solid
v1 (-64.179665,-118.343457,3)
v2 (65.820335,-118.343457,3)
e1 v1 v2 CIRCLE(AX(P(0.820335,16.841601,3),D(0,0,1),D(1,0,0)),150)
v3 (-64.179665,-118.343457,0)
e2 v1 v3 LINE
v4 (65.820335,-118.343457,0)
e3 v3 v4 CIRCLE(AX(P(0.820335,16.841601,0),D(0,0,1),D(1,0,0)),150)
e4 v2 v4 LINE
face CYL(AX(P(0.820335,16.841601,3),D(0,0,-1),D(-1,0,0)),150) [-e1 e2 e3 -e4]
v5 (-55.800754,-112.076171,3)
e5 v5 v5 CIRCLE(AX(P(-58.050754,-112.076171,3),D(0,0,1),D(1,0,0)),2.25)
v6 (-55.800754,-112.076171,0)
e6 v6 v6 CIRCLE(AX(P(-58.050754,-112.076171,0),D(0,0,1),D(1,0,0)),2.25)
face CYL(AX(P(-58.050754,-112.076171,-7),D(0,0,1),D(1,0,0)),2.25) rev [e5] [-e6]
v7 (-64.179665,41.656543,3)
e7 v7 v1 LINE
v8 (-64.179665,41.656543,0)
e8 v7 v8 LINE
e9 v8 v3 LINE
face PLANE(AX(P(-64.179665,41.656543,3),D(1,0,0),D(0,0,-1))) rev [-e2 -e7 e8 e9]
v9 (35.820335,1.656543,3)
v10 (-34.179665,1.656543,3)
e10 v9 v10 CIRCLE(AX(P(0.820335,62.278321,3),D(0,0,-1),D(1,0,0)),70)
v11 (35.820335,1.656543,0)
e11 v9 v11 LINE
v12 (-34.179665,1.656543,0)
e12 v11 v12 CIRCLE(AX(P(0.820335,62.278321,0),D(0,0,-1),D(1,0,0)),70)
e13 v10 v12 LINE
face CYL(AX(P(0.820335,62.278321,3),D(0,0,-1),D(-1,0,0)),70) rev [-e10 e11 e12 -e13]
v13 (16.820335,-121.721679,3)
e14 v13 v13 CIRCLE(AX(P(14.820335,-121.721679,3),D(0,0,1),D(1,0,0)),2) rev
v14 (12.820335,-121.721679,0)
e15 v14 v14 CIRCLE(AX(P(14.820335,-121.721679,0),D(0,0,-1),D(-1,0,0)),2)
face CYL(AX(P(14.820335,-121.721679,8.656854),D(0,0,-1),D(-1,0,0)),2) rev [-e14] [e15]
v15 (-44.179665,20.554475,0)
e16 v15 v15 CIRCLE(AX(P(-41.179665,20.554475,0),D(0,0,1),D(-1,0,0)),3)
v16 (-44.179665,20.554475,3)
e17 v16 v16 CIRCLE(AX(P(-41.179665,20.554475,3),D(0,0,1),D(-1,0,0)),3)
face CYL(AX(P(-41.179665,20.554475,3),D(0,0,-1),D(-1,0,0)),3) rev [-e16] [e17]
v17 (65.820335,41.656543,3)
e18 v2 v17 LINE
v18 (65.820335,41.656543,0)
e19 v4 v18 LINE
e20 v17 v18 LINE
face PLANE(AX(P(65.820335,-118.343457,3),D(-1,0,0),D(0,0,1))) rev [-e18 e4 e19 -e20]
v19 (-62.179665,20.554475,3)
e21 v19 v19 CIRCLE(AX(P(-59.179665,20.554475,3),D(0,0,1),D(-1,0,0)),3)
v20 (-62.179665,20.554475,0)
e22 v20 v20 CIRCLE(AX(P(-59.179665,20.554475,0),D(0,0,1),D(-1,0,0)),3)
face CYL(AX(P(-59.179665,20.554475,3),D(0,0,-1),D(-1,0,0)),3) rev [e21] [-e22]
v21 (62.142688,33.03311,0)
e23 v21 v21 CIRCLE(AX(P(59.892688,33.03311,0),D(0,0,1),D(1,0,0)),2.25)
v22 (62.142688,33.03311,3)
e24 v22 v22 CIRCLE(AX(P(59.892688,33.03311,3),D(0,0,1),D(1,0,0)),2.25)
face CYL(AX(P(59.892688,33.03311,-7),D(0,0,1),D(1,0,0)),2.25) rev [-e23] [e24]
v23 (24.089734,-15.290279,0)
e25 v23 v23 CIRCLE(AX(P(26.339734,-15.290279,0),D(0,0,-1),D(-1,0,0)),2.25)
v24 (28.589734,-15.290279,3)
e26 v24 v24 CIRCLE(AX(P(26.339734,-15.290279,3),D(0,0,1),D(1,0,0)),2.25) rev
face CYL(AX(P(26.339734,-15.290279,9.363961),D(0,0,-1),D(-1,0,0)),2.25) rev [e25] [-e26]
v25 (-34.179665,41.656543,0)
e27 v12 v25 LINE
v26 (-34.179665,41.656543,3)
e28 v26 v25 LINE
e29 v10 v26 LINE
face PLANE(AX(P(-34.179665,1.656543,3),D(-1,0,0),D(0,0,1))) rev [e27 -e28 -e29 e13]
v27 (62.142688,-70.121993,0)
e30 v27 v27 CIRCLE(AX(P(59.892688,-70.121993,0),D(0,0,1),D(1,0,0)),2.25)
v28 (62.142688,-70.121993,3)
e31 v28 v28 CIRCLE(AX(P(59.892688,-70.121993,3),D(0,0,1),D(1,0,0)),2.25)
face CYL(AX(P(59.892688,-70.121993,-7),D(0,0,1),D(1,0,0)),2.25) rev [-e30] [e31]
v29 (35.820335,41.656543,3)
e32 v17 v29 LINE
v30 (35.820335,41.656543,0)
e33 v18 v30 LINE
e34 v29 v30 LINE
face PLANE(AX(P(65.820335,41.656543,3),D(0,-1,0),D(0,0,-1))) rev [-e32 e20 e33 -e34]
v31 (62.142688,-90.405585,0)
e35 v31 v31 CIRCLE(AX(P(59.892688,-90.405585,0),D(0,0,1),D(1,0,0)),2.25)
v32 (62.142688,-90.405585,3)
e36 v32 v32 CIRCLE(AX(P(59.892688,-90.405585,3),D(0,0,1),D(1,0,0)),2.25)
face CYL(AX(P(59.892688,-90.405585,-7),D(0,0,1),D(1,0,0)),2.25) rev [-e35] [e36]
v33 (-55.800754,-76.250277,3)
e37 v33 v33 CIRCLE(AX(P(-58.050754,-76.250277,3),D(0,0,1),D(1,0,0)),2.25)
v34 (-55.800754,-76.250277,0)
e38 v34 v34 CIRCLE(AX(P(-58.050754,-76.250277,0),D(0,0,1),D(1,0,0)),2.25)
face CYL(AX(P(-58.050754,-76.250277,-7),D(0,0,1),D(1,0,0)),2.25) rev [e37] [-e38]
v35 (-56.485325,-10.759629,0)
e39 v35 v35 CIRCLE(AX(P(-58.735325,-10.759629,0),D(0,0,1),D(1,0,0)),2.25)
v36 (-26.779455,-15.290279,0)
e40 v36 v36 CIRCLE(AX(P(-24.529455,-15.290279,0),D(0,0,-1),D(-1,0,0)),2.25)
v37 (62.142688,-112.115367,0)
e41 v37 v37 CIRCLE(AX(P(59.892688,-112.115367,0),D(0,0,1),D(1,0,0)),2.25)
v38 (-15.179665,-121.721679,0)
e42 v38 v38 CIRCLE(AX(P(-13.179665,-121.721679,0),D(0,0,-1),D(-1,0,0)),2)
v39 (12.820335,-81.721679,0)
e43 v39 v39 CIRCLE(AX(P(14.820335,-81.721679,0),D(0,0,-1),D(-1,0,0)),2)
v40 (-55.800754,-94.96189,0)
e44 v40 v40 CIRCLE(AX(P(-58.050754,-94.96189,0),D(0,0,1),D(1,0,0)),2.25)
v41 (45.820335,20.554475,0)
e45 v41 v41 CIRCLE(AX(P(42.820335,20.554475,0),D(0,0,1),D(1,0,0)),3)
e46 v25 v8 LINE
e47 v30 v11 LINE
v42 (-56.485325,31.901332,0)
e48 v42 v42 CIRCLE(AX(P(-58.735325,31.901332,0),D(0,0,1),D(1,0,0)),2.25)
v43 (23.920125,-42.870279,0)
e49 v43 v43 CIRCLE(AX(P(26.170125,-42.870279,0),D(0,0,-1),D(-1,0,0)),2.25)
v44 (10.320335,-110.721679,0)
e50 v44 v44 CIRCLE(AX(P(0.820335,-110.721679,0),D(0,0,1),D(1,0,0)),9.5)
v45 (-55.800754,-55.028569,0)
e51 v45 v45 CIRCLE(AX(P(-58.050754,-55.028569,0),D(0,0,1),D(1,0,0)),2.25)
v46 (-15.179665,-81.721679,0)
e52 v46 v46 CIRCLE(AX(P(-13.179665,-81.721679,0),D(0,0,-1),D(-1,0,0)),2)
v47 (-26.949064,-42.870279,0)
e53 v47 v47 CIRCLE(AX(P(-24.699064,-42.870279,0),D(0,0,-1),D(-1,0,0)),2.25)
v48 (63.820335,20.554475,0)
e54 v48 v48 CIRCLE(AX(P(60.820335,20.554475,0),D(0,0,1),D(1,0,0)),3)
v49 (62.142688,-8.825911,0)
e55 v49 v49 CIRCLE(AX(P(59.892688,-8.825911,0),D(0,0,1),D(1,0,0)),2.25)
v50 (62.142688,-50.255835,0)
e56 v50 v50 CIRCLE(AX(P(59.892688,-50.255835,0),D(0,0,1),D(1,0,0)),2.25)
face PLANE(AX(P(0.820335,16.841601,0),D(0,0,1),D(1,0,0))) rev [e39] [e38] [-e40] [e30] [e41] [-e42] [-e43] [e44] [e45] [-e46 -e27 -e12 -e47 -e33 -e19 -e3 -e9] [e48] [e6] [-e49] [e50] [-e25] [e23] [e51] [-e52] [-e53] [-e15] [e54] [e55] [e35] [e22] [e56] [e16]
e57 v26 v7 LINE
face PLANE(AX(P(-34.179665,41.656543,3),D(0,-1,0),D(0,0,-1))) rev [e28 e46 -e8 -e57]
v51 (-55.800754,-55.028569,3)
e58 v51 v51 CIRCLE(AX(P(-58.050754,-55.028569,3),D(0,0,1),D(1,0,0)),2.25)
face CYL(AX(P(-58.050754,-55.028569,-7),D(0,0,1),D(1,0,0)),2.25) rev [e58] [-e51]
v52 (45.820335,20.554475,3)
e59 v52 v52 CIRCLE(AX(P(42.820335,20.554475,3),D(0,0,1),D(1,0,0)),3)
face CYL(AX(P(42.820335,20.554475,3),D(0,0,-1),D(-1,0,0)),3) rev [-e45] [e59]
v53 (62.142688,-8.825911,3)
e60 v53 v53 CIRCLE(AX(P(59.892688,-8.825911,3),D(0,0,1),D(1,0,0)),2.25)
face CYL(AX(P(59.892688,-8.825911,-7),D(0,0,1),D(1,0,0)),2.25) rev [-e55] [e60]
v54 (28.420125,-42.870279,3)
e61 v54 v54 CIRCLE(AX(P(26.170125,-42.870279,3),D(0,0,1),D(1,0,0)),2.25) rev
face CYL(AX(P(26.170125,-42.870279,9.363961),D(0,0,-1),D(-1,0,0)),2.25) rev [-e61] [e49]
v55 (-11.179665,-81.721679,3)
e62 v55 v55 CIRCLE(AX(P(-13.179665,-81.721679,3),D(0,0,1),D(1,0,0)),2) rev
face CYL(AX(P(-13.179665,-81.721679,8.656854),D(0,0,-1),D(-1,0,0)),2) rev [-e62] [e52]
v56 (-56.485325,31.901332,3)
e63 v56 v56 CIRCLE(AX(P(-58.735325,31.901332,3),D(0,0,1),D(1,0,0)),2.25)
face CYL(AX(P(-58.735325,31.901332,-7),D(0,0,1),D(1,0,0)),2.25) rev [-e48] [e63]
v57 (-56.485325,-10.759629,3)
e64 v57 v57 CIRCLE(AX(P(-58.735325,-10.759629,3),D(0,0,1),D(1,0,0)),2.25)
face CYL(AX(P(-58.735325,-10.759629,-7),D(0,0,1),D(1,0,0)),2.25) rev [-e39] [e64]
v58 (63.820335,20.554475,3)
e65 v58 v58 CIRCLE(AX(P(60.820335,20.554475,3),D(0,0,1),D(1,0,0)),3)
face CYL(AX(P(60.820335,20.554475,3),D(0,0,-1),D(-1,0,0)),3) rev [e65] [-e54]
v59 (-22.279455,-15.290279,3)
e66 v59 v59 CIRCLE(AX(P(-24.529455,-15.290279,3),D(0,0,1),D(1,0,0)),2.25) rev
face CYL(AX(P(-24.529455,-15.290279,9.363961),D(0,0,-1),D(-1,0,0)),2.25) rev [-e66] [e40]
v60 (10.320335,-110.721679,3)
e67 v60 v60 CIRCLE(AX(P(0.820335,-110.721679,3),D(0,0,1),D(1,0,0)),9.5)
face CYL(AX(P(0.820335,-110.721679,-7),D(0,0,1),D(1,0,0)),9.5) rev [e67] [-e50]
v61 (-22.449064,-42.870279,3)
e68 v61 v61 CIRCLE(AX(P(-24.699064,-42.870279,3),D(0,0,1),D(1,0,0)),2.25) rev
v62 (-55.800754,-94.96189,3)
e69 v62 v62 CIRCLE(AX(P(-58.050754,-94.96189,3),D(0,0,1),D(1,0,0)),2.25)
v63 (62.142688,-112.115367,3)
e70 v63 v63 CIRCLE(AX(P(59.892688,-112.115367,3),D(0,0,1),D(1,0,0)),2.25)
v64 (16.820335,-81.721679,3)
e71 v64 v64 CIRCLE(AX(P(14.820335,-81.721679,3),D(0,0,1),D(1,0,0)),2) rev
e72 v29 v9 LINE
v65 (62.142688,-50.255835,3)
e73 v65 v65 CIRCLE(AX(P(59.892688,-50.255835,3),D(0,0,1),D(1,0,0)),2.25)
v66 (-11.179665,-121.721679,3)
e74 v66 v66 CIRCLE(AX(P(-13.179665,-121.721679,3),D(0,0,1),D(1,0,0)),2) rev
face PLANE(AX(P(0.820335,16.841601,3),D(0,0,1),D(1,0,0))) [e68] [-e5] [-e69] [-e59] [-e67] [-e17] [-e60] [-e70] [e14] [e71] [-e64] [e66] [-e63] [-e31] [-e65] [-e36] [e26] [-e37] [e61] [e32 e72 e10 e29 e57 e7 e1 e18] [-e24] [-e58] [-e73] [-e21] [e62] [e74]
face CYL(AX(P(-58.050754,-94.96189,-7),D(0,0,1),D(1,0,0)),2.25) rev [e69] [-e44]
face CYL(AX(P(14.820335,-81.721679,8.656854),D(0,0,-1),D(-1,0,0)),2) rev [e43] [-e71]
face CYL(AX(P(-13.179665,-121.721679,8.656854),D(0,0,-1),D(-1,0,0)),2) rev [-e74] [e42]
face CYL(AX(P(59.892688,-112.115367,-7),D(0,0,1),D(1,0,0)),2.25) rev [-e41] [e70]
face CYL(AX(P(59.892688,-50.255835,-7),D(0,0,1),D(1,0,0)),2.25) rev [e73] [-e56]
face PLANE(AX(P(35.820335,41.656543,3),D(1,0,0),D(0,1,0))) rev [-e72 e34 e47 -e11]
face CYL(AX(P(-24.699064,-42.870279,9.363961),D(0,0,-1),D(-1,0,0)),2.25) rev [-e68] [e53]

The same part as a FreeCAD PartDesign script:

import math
import FreeCAD as App
import Part
import Sketcher
from FreeCAD import Vector

doc = App.newDocument("Part")
body = doc.addObject("PartDesign::Body", "Body")

sketch1 = doc.addObject("Sketcher::SketchObject", "Sketch")
body.addObject(sketch1)
sketch1.AttachmentSupport = (doc.XY_Plane, [""])
sketch1.MapMode = "FlatFace"
sketch1.addGeometry(Part.LineSegment(Vector(-34.2, 1.7, 0), Vector(-34.2, 41.7, 0)), False)
sketch1.addGeometry(Part.LineSegment(Vector(-34.2, 41.7, 0), Vector(-64.2, 41.7, 0)), False)
sketch1.addGeometry(Part.LineSegment(Vector(-64.2, 41.7, 0), Vector(-64.2, -118.3, 0)), False)
sketch1.addGeometry(Part.ArcOfCircle(Part.Circle(Vector(0.8, 16.8, 0), Vector(0, 0, 1), 150), math.radians(-116), math.radians(-64)), False)
sketch1.addGeometry(Part.LineSegment(Vector(65.8, -118.3, 0), Vector(65.8, 41.7, 0)), False)
sketch1.addGeometry(Part.LineSegment(Vector(65.8, 41.7, 0), Vector(35.8, 41.7, 0)), False)
sketch1.addGeometry(Part.LineSegment(Vector(35.8, 41.7, 0), Vector(35.8, 1.7, 0)), False)
sketch1.addGeometry(Part.ArcOfCircle(Part.Circle(Vector(0.8, 62.3, 0), Vector(0, 0, 1), 70), math.radians(-120), math.radians(-60)), False)
sketch1.addGeometry(Part.Circle(Vector(-59.2, 20.6, 0), Vector(0, 0, 1), 3), False)
sketch1.addGeometry(Part.Circle(Vector(-41.2, 20.6, 0), Vector(0, 0, 1), 3), False)
sketch1.addGeometry(Part.Circle(Vector(42.8, 20.6, 0), Vector(0, 0, 1), 3), False)
sketch1.addGeometry(Part.Circle(Vector(60.8, 20.6, 0), Vector(0, 0, 1), 3), False)
sketch1.addConstraint(Sketcher.Constraint("Coincident", 0, 2, 1, 1))
sketch1.addConstraint(Sketcher.Constraint("Coincident", 1, 2, 2, 1))
sketch1.addConstraint(Sketcher.Constraint("Coincident", 2, 2, 3, 1))
sketch1.addConstraint(Sketcher.Constraint("Coincident", 3, 2, 4, 1))
sketch1.addConstraint(Sketcher.Constraint("Coincident", 4, 2, 5, 1))
sketch1.addConstraint(Sketcher.Constraint("Coincident", 5, 2, 6, 1))
sketch1.addConstraint(Sketcher.Constraint("Coincident", 6, 2, 7, 2))
sketch1.addConstraint(Sketcher.Constraint("Coincident", 7, 1, 0, 1))
sketch1.addConstraint(Sketcher.Constraint("Vertical", 0))
sketch1.addConstraint(Sketcher.Constraint("Horizontal", 1))
sketch1.addConstraint(Sketcher.Constraint("Vertical", 2))
sketch1.addConstraint(Sketcher.Constraint("Vertical", 4))
sketch1.addConstraint(Sketcher.Constraint("Horizontal", 5))
sketch1.addConstraint(Sketcher.Constraint("Vertical", 6))
sketch1.addConstraint(Sketcher.Constraint("Equal", 8, 9))
sketch1.addConstraint(Sketcher.Constraint("Equal", 9, 10))
sketch1.addConstraint(Sketcher.Constraint("Equal", 10, 11))
sketch1.addConstraint(Sketcher.Constraint("Horizontal", 8, 3, 9, 3))
sketch1.addConstraint(Sketcher.Constraint("Horizontal", 9, 3, 10, 3))
sketch1.addConstraint(Sketcher.Constraint("Horizontal", 10, 3, 11, 3))
sketch1.addConstraint(Sketcher.Constraint("Horizontal", 2, 2, 3, 2))
sketch1.addConstraint(Sketcher.Constraint("Horizontal", 1, 2, 4, 2))
sketch1.addConstraint(Sketcher.Constraint("Horizontal", 6, 2, 7, 1))
sketch1.addConstraint(Sketcher.Constraint("Vertical", 3, 3, 7, 3))
sketch1.addConstraint(Sketcher.Constraint("Diameter", 8, 6.0))
sketch1.addConstraint(Sketcher.Constraint("Radius", 3, 150.0))
sketch1.addConstraint(Sketcher.Constraint("Radius", 7, 70.0))
sketch1.addConstraint(Sketcher.Constraint("DistanceX", 1, 2, 1, 1, 30.0))
sketch1.addConstraint(Sketcher.Constraint("DistanceY", 0, 1, 0, 2, 40.0))
sketch1.addConstraint(Sketcher.Constraint("DistanceY", 2, 2, 2, 1, 160.0))
sketch1.addConstraint(Sketcher.Constraint("DistanceX", 8, 3, 3, 3, 60.0))
sketch1.addConstraint(Sketcher.Constraint("DistanceX", 8, 3, 9, 3, 18.0))
sketch1.addConstraint(Sketcher.Constraint("DistanceX", 3, 3, 10, 3, 42.0))
sketch1.addConstraint(Sketcher.Constraint("DistanceX", 10, 3, 11, 3, 18.0))
sketch1.addConstraint(Sketcher.Constraint("DistanceX", 9, 3, 0, 2, 7.0))
sketch1.addConstraint(Sketcher.Constraint("DistanceY", -1, 1, 3, 3, 16.841601))
sketch1.addConstraint(Sketcher.Constraint("DistanceY", 9, 3, 0, 2, 21.102068))
sketch1.addConstraint(Sketcher.Constraint("DistanceX", -1, 1, 3, 3, 0.820335))
pad1 = doc.addObject("PartDesign::Pad", "Pad")
body.addObject(pad1)
pad1.Profile = sketch1
pad1.Length = 3

sketch2 = doc.addObject("Sketcher::SketchObject", "Sketch001")
body.addObject(sketch2)
sketch2.AttachmentSupport = (doc.XY_Plane, [""])
sketch2.MapMode = "FlatFace"
sketch2.AttachmentOffset = App.Placement(Vector(0, 0, 3), App.Rotation())
sketch2.addGeometry(Part.Circle(Vector(1, -111, 0), Vector(0, 0, 1), 10), False)
sketch2.addConstraint(Sketcher.Constraint("Diameter", 0, 19.0))
sketch2.addConstraint(Sketcher.Constraint("DistanceY", 0, 3, -1, 1, 110.721679))
sketch2.addConstraint(Sketcher.Constraint("DistanceX", -1, 1, 0, 3, 0.820335))
pocket1 = doc.addObject("PartDesign::Pocket", "Pocket")
body.addObject(pocket1)
pocket1.Profile = sketch2
pocket1.Length = 10

sketch3 = doc.addObject("Sketcher::SketchObject", "Sketch002")
body.addObject(sketch3)
sketch3.AttachmentSupport = (doc.XY_Plane, [""])
sketch3.MapMode = "FlatFace"
sketch3.addGeometry(Part.Circle(Vector(14.8, -121.7, 0), Vector(0, 0, 1), 2), False)
sketch3.addGeometry(Part.Circle(Vector(14.8, -81.7, 0), Vector(0, 0, 1), 2), False)
sketch3.addGeometry(Part.Circle(Vector(-13.2, -81.7, 0), Vector(0, 0, 1), 2), False)
sketch3.addGeometry(Part.Circle(Vector(-13.2, -121.7, 0), Vector(0, 0, 1), 2), False)
sketch3.addConstraint(Sketcher.Constraint("Equal", 0, 1))
sketch3.addConstraint(Sketcher.Constraint("Equal", 1, 2))
sketch3.addConstraint(Sketcher.Constraint("Equal", 2, 3))
sketch3.addConstraint(Sketcher.Constraint("Horizontal", 1, 3, 2, 3))
sketch3.addConstraint(Sketcher.Constraint("Horizontal", 0, 3, 3, 3))
sketch3.addConstraint(Sketcher.Constraint("Vertical", 0, 3, 1, 3))
sketch3.addConstraint(Sketcher.Constraint("Vertical", 2, 3, 3, 3))
sketch3.addConstraint(Sketcher.Constraint("Diameter", 0, 4.0))
sketch3.addConstraint(Sketcher.Constraint("DistanceY", 0, 3, 1, 3, 40.0))
sketch3.addConstraint(Sketcher.Constraint("DistanceX", 2, 3, 1, 3, 28.0))
sketch3.addConstraint(Sketcher.Constraint("DistanceY", 0, 3, -1, 1, 121.721679))
sketch3.addConstraint(Sketcher.Constraint("DistanceX", -1, 1, 0, 3, 14.820335))
pocket2 = doc.addObject("PartDesign::Pocket", "Pocket001")
body.addObject(pocket2)
pocket2.Profile = sketch3
pocket2.Length = 3
pocket2.Reversed = True

sketch4 = doc.addObject("Sketcher::SketchObject", "Sketch003")
body.addObject(sketch4)
sketch4.AttachmentSupport = (doc.XY_Plane, [""])
sketch4.MapMode = "FlatFace"
sketch4.addGeometry(Part.Circle(Vector(26.2, -42.9, 0), Vector(0, 0, 1), 2.2), False)
sketch4.addGeometry(Part.Circle(Vector(26.3, -15.3, 0), Vector(0, 0, 1), 2.2), False)
sketch4.addGeometry(Part.Circle(Vector(-24.5, -15.3, 0), Vector(0, 0, 1), 2.2), False)
sketch4.addGeometry(Part.Circle(Vector(-24.7, -42.9, 0), Vector(0, 0, 1), 2.2), False)
sketch4.addConstraint(Sketcher.Constraint("Equal", 0, 1))
sketch4.addConstraint(Sketcher.Constraint("Equal", 1, 2))
sketch4.addConstraint(Sketcher.Constraint("Equal", 2, 3))
sketch4.addConstraint(Sketcher.Constraint("Horizontal", 1, 3, 2, 3))
sketch4.addConstraint(Sketcher.Constraint("Horizontal", 0, 3, 3, 3))
sketch4.addConstraint(Sketcher.Constraint("Diameter", 0, 4.5))
sketch4.addConstraint(Sketcher.Constraint("DistanceY", 0, 3, 1, 3, 27.58))
sketch4.addConstraint(Sketcher.Constraint("DistanceX", 3, 3, 1, 3, 51.038798))
sketch4.addConstraint(Sketcher.Constraint("DistanceY", 0, 3, -1, 1, 42.870279))
sketch4.addConstraint(Sketcher.Constraint("DistanceX", 0, 3, 1, 3, 0.16961))
sketch4.addConstraint(Sketcher.Constraint("DistanceX", 2, 3, 1, 3, 50.869189))
sketch4.addConstraint(Sketcher.Constraint("DistanceX", -1, 1, 0, 3, 26.170125))
pocket3 = doc.addObject("PartDesign::Pocket", "Pocket002")
body.addObject(pocket3)
pocket3.Profile = sketch4
pocket3.Length = 3
pocket3.Reversed = True

sketch5 = doc.addObject("Sketcher::SketchObject", "Sketch004")
body.addObject(sketch5)
sketch5.AttachmentSupport = (doc.XY_Plane, [""])
sketch5.MapMode = "FlatFace"
sketch5.AttachmentOffset = App.Placement(Vector(0, 0, 3), App.Rotation())
sketch5.addGeometry(Part.Circle(Vector(-58.1, -112.1, 0), Vector(0, 0, 1), 2.2), False)
sketch5.addGeometry(Part.Circle(Vector(-58.1, -95, 0), Vector(0, 0, 1), 2.2), False)
sketch5.addGeometry(Part.Circle(Vector(-58.1, -76.3, 0), Vector(0, 0, 1), 2.2), False)
sketch5.addGeometry(Part.Circle(Vector(-58.1, -55, 0), Vector(0, 0, 1), 2.2), False)
sketch5.addGeometry(Part.Circle(Vector(-58.7, -10.8, 0), Vector(0, 0, 1), 2.2), False)
sketch5.addGeometry(Part.Circle(Vector(-58.7, 31.9, 0), Vector(0, 0, 1), 2.2), False)
sketch5.addGeometry(Part.Circle(Vector(59.9, -112.1, 0), Vector(0, 0, 1), 2.2), False)
sketch5.addGeometry(Part.Circle(Vector(59.9, -90.4, 0), Vector(0, 0, 1), 2.2), False)
sketch5.addGeometry(Part.Circle(Vector(59.9, -70.1, 0), Vector(0, 0, 1), 2.2), False)
sketch5.addGeometry(Part.Circle(Vector(59.9, -50.3, 0), Vector(0, 0, 1), 2.2), False)
sketch5.addGeometry(Part.Circle(Vector(59.9, -8.8, 0), Vector(0, 0, 1), 2.2), False)
sketch5.addGeometry(Part.Circle(Vector(59.9, 33, 0), Vector(0, 0, 1), 2.2), False)
sketch5.addConstraint(Sketcher.Constraint("Equal", 0, 1))
sketch5.addConstraint(Sketcher.Constraint("Equal", 1, 2))
sketch5.addConstraint(Sketcher.Constraint("Equal", 2, 3))
sketch5.addConstraint(Sketcher.Constraint("Equal", 3, 4))
sketch5.addConstraint(Sketcher.Constraint("Equal", 4, 5))
sketch5.addConstraint(Sketcher.Constraint("Equal", 5, 6))
sketch5.addConstraint(Sketcher.Constraint("Equal", 6, 7))
sketch5.addConstraint(Sketcher.Constraint("Equal", 7, 8))
sketch5.addConstraint(Sketcher.Constraint("Equal", 8, 9))
sketch5.addConstraint(Sketcher.Constraint("Equal", 9, 10))
sketch5.addConstraint(Sketcher.Constraint("Equal", 10, 11))
sketch5.addConstraint(Sketcher.Constraint("Vertical", 0, 3, 1, 3))
sketch5.addConstraint(Sketcher.Constraint("Vertical", 1, 3, 2, 3))
sketch5.addConstraint(Sketcher.Constraint("Vertical", 2, 3, 3, 3))
sketch5.addConstraint(Sketcher.Constraint("Vertical", 4, 3, 5, 3))
sketch5.addConstraint(Sketcher.Constraint("Vertical", 6, 3, 7, 3))
sketch5.addConstraint(Sketcher.Constraint("Vertical", 7, 3, 8, 3))
sketch5.addConstraint(Sketcher.Constraint("Vertical", 8, 3, 9, 3))
sketch5.addConstraint(Sketcher.Constraint("Vertical", 9, 3, 10, 3))
sketch5.addConstraint(Sketcher.Constraint("Vertical", 10, 3, 11, 3))
sketch5.addConstraint(Sketcher.Constraint("Diameter", 0, 4.5))
sketch5.addConstraint(Sketcher.Constraint("DistanceY", 3, 3, 5, 3, 86.929901))
sketch5.addConstraint(Sketcher.Constraint("DistanceY", 6, 3, 3, 3, 57.086798))
sketch5.addConstraint(Sketcher.Constraint("DistanceY", 0, 3, -1, 1, 112.076171))
sketch5.addConstraint(Sketcher.Constraint("DistanceY", 1, 3, -1, 1, 94.96189))
sketch5.addConstraint(Sketcher.Constraint("DistanceY", 3, 3, -1, 1, 55.028569))
sketch5.addConstraint(Sketcher.Constraint("DistanceY", 4, 3, -1, 1, 10.759629))
sketch5.addConstraint(Sketcher.Constraint("DistanceY", 10, 3, -1, 1, 8.825911))
sketch5.addConstraint(Sketcher.Constraint("DistanceY", -1, 1, 11, 3, 33.03311))
sketch5.addConstraint(Sketcher.Constraint("DistanceY", 2, 3, 3, 3, 21.221708))
sketch5.addConstraint(Sketcher.Constraint("DistanceX", 4, 3, 3, 3, 0.684571))
sketch5.addConstraint(Sketcher.Constraint("DistanceX", 0, 3, 6, 3, 117.943441))
sketch5.addConstraint(Sketcher.Constraint("DistanceY", 6, 3, 7, 3, 21.709782))
sketch5.addConstraint(Sketcher.Constraint("DistanceY", 7, 3, 8, 3, 20.283592))
sketch5.addConstraint(Sketcher.Constraint("DistanceY", 7, 3, 9, 3, 40.149749))
sketch5.addConstraint(Sketcher.Constraint("DistanceX", 0, 3, -1, 1, 58.050754))
pocket4 = doc.addObject("PartDesign::Pocket", "Pocket003")
body.addObject(pocket4)
pocket4.Profile = sketch5
pocket4.Length = 10

doc.recompute()
